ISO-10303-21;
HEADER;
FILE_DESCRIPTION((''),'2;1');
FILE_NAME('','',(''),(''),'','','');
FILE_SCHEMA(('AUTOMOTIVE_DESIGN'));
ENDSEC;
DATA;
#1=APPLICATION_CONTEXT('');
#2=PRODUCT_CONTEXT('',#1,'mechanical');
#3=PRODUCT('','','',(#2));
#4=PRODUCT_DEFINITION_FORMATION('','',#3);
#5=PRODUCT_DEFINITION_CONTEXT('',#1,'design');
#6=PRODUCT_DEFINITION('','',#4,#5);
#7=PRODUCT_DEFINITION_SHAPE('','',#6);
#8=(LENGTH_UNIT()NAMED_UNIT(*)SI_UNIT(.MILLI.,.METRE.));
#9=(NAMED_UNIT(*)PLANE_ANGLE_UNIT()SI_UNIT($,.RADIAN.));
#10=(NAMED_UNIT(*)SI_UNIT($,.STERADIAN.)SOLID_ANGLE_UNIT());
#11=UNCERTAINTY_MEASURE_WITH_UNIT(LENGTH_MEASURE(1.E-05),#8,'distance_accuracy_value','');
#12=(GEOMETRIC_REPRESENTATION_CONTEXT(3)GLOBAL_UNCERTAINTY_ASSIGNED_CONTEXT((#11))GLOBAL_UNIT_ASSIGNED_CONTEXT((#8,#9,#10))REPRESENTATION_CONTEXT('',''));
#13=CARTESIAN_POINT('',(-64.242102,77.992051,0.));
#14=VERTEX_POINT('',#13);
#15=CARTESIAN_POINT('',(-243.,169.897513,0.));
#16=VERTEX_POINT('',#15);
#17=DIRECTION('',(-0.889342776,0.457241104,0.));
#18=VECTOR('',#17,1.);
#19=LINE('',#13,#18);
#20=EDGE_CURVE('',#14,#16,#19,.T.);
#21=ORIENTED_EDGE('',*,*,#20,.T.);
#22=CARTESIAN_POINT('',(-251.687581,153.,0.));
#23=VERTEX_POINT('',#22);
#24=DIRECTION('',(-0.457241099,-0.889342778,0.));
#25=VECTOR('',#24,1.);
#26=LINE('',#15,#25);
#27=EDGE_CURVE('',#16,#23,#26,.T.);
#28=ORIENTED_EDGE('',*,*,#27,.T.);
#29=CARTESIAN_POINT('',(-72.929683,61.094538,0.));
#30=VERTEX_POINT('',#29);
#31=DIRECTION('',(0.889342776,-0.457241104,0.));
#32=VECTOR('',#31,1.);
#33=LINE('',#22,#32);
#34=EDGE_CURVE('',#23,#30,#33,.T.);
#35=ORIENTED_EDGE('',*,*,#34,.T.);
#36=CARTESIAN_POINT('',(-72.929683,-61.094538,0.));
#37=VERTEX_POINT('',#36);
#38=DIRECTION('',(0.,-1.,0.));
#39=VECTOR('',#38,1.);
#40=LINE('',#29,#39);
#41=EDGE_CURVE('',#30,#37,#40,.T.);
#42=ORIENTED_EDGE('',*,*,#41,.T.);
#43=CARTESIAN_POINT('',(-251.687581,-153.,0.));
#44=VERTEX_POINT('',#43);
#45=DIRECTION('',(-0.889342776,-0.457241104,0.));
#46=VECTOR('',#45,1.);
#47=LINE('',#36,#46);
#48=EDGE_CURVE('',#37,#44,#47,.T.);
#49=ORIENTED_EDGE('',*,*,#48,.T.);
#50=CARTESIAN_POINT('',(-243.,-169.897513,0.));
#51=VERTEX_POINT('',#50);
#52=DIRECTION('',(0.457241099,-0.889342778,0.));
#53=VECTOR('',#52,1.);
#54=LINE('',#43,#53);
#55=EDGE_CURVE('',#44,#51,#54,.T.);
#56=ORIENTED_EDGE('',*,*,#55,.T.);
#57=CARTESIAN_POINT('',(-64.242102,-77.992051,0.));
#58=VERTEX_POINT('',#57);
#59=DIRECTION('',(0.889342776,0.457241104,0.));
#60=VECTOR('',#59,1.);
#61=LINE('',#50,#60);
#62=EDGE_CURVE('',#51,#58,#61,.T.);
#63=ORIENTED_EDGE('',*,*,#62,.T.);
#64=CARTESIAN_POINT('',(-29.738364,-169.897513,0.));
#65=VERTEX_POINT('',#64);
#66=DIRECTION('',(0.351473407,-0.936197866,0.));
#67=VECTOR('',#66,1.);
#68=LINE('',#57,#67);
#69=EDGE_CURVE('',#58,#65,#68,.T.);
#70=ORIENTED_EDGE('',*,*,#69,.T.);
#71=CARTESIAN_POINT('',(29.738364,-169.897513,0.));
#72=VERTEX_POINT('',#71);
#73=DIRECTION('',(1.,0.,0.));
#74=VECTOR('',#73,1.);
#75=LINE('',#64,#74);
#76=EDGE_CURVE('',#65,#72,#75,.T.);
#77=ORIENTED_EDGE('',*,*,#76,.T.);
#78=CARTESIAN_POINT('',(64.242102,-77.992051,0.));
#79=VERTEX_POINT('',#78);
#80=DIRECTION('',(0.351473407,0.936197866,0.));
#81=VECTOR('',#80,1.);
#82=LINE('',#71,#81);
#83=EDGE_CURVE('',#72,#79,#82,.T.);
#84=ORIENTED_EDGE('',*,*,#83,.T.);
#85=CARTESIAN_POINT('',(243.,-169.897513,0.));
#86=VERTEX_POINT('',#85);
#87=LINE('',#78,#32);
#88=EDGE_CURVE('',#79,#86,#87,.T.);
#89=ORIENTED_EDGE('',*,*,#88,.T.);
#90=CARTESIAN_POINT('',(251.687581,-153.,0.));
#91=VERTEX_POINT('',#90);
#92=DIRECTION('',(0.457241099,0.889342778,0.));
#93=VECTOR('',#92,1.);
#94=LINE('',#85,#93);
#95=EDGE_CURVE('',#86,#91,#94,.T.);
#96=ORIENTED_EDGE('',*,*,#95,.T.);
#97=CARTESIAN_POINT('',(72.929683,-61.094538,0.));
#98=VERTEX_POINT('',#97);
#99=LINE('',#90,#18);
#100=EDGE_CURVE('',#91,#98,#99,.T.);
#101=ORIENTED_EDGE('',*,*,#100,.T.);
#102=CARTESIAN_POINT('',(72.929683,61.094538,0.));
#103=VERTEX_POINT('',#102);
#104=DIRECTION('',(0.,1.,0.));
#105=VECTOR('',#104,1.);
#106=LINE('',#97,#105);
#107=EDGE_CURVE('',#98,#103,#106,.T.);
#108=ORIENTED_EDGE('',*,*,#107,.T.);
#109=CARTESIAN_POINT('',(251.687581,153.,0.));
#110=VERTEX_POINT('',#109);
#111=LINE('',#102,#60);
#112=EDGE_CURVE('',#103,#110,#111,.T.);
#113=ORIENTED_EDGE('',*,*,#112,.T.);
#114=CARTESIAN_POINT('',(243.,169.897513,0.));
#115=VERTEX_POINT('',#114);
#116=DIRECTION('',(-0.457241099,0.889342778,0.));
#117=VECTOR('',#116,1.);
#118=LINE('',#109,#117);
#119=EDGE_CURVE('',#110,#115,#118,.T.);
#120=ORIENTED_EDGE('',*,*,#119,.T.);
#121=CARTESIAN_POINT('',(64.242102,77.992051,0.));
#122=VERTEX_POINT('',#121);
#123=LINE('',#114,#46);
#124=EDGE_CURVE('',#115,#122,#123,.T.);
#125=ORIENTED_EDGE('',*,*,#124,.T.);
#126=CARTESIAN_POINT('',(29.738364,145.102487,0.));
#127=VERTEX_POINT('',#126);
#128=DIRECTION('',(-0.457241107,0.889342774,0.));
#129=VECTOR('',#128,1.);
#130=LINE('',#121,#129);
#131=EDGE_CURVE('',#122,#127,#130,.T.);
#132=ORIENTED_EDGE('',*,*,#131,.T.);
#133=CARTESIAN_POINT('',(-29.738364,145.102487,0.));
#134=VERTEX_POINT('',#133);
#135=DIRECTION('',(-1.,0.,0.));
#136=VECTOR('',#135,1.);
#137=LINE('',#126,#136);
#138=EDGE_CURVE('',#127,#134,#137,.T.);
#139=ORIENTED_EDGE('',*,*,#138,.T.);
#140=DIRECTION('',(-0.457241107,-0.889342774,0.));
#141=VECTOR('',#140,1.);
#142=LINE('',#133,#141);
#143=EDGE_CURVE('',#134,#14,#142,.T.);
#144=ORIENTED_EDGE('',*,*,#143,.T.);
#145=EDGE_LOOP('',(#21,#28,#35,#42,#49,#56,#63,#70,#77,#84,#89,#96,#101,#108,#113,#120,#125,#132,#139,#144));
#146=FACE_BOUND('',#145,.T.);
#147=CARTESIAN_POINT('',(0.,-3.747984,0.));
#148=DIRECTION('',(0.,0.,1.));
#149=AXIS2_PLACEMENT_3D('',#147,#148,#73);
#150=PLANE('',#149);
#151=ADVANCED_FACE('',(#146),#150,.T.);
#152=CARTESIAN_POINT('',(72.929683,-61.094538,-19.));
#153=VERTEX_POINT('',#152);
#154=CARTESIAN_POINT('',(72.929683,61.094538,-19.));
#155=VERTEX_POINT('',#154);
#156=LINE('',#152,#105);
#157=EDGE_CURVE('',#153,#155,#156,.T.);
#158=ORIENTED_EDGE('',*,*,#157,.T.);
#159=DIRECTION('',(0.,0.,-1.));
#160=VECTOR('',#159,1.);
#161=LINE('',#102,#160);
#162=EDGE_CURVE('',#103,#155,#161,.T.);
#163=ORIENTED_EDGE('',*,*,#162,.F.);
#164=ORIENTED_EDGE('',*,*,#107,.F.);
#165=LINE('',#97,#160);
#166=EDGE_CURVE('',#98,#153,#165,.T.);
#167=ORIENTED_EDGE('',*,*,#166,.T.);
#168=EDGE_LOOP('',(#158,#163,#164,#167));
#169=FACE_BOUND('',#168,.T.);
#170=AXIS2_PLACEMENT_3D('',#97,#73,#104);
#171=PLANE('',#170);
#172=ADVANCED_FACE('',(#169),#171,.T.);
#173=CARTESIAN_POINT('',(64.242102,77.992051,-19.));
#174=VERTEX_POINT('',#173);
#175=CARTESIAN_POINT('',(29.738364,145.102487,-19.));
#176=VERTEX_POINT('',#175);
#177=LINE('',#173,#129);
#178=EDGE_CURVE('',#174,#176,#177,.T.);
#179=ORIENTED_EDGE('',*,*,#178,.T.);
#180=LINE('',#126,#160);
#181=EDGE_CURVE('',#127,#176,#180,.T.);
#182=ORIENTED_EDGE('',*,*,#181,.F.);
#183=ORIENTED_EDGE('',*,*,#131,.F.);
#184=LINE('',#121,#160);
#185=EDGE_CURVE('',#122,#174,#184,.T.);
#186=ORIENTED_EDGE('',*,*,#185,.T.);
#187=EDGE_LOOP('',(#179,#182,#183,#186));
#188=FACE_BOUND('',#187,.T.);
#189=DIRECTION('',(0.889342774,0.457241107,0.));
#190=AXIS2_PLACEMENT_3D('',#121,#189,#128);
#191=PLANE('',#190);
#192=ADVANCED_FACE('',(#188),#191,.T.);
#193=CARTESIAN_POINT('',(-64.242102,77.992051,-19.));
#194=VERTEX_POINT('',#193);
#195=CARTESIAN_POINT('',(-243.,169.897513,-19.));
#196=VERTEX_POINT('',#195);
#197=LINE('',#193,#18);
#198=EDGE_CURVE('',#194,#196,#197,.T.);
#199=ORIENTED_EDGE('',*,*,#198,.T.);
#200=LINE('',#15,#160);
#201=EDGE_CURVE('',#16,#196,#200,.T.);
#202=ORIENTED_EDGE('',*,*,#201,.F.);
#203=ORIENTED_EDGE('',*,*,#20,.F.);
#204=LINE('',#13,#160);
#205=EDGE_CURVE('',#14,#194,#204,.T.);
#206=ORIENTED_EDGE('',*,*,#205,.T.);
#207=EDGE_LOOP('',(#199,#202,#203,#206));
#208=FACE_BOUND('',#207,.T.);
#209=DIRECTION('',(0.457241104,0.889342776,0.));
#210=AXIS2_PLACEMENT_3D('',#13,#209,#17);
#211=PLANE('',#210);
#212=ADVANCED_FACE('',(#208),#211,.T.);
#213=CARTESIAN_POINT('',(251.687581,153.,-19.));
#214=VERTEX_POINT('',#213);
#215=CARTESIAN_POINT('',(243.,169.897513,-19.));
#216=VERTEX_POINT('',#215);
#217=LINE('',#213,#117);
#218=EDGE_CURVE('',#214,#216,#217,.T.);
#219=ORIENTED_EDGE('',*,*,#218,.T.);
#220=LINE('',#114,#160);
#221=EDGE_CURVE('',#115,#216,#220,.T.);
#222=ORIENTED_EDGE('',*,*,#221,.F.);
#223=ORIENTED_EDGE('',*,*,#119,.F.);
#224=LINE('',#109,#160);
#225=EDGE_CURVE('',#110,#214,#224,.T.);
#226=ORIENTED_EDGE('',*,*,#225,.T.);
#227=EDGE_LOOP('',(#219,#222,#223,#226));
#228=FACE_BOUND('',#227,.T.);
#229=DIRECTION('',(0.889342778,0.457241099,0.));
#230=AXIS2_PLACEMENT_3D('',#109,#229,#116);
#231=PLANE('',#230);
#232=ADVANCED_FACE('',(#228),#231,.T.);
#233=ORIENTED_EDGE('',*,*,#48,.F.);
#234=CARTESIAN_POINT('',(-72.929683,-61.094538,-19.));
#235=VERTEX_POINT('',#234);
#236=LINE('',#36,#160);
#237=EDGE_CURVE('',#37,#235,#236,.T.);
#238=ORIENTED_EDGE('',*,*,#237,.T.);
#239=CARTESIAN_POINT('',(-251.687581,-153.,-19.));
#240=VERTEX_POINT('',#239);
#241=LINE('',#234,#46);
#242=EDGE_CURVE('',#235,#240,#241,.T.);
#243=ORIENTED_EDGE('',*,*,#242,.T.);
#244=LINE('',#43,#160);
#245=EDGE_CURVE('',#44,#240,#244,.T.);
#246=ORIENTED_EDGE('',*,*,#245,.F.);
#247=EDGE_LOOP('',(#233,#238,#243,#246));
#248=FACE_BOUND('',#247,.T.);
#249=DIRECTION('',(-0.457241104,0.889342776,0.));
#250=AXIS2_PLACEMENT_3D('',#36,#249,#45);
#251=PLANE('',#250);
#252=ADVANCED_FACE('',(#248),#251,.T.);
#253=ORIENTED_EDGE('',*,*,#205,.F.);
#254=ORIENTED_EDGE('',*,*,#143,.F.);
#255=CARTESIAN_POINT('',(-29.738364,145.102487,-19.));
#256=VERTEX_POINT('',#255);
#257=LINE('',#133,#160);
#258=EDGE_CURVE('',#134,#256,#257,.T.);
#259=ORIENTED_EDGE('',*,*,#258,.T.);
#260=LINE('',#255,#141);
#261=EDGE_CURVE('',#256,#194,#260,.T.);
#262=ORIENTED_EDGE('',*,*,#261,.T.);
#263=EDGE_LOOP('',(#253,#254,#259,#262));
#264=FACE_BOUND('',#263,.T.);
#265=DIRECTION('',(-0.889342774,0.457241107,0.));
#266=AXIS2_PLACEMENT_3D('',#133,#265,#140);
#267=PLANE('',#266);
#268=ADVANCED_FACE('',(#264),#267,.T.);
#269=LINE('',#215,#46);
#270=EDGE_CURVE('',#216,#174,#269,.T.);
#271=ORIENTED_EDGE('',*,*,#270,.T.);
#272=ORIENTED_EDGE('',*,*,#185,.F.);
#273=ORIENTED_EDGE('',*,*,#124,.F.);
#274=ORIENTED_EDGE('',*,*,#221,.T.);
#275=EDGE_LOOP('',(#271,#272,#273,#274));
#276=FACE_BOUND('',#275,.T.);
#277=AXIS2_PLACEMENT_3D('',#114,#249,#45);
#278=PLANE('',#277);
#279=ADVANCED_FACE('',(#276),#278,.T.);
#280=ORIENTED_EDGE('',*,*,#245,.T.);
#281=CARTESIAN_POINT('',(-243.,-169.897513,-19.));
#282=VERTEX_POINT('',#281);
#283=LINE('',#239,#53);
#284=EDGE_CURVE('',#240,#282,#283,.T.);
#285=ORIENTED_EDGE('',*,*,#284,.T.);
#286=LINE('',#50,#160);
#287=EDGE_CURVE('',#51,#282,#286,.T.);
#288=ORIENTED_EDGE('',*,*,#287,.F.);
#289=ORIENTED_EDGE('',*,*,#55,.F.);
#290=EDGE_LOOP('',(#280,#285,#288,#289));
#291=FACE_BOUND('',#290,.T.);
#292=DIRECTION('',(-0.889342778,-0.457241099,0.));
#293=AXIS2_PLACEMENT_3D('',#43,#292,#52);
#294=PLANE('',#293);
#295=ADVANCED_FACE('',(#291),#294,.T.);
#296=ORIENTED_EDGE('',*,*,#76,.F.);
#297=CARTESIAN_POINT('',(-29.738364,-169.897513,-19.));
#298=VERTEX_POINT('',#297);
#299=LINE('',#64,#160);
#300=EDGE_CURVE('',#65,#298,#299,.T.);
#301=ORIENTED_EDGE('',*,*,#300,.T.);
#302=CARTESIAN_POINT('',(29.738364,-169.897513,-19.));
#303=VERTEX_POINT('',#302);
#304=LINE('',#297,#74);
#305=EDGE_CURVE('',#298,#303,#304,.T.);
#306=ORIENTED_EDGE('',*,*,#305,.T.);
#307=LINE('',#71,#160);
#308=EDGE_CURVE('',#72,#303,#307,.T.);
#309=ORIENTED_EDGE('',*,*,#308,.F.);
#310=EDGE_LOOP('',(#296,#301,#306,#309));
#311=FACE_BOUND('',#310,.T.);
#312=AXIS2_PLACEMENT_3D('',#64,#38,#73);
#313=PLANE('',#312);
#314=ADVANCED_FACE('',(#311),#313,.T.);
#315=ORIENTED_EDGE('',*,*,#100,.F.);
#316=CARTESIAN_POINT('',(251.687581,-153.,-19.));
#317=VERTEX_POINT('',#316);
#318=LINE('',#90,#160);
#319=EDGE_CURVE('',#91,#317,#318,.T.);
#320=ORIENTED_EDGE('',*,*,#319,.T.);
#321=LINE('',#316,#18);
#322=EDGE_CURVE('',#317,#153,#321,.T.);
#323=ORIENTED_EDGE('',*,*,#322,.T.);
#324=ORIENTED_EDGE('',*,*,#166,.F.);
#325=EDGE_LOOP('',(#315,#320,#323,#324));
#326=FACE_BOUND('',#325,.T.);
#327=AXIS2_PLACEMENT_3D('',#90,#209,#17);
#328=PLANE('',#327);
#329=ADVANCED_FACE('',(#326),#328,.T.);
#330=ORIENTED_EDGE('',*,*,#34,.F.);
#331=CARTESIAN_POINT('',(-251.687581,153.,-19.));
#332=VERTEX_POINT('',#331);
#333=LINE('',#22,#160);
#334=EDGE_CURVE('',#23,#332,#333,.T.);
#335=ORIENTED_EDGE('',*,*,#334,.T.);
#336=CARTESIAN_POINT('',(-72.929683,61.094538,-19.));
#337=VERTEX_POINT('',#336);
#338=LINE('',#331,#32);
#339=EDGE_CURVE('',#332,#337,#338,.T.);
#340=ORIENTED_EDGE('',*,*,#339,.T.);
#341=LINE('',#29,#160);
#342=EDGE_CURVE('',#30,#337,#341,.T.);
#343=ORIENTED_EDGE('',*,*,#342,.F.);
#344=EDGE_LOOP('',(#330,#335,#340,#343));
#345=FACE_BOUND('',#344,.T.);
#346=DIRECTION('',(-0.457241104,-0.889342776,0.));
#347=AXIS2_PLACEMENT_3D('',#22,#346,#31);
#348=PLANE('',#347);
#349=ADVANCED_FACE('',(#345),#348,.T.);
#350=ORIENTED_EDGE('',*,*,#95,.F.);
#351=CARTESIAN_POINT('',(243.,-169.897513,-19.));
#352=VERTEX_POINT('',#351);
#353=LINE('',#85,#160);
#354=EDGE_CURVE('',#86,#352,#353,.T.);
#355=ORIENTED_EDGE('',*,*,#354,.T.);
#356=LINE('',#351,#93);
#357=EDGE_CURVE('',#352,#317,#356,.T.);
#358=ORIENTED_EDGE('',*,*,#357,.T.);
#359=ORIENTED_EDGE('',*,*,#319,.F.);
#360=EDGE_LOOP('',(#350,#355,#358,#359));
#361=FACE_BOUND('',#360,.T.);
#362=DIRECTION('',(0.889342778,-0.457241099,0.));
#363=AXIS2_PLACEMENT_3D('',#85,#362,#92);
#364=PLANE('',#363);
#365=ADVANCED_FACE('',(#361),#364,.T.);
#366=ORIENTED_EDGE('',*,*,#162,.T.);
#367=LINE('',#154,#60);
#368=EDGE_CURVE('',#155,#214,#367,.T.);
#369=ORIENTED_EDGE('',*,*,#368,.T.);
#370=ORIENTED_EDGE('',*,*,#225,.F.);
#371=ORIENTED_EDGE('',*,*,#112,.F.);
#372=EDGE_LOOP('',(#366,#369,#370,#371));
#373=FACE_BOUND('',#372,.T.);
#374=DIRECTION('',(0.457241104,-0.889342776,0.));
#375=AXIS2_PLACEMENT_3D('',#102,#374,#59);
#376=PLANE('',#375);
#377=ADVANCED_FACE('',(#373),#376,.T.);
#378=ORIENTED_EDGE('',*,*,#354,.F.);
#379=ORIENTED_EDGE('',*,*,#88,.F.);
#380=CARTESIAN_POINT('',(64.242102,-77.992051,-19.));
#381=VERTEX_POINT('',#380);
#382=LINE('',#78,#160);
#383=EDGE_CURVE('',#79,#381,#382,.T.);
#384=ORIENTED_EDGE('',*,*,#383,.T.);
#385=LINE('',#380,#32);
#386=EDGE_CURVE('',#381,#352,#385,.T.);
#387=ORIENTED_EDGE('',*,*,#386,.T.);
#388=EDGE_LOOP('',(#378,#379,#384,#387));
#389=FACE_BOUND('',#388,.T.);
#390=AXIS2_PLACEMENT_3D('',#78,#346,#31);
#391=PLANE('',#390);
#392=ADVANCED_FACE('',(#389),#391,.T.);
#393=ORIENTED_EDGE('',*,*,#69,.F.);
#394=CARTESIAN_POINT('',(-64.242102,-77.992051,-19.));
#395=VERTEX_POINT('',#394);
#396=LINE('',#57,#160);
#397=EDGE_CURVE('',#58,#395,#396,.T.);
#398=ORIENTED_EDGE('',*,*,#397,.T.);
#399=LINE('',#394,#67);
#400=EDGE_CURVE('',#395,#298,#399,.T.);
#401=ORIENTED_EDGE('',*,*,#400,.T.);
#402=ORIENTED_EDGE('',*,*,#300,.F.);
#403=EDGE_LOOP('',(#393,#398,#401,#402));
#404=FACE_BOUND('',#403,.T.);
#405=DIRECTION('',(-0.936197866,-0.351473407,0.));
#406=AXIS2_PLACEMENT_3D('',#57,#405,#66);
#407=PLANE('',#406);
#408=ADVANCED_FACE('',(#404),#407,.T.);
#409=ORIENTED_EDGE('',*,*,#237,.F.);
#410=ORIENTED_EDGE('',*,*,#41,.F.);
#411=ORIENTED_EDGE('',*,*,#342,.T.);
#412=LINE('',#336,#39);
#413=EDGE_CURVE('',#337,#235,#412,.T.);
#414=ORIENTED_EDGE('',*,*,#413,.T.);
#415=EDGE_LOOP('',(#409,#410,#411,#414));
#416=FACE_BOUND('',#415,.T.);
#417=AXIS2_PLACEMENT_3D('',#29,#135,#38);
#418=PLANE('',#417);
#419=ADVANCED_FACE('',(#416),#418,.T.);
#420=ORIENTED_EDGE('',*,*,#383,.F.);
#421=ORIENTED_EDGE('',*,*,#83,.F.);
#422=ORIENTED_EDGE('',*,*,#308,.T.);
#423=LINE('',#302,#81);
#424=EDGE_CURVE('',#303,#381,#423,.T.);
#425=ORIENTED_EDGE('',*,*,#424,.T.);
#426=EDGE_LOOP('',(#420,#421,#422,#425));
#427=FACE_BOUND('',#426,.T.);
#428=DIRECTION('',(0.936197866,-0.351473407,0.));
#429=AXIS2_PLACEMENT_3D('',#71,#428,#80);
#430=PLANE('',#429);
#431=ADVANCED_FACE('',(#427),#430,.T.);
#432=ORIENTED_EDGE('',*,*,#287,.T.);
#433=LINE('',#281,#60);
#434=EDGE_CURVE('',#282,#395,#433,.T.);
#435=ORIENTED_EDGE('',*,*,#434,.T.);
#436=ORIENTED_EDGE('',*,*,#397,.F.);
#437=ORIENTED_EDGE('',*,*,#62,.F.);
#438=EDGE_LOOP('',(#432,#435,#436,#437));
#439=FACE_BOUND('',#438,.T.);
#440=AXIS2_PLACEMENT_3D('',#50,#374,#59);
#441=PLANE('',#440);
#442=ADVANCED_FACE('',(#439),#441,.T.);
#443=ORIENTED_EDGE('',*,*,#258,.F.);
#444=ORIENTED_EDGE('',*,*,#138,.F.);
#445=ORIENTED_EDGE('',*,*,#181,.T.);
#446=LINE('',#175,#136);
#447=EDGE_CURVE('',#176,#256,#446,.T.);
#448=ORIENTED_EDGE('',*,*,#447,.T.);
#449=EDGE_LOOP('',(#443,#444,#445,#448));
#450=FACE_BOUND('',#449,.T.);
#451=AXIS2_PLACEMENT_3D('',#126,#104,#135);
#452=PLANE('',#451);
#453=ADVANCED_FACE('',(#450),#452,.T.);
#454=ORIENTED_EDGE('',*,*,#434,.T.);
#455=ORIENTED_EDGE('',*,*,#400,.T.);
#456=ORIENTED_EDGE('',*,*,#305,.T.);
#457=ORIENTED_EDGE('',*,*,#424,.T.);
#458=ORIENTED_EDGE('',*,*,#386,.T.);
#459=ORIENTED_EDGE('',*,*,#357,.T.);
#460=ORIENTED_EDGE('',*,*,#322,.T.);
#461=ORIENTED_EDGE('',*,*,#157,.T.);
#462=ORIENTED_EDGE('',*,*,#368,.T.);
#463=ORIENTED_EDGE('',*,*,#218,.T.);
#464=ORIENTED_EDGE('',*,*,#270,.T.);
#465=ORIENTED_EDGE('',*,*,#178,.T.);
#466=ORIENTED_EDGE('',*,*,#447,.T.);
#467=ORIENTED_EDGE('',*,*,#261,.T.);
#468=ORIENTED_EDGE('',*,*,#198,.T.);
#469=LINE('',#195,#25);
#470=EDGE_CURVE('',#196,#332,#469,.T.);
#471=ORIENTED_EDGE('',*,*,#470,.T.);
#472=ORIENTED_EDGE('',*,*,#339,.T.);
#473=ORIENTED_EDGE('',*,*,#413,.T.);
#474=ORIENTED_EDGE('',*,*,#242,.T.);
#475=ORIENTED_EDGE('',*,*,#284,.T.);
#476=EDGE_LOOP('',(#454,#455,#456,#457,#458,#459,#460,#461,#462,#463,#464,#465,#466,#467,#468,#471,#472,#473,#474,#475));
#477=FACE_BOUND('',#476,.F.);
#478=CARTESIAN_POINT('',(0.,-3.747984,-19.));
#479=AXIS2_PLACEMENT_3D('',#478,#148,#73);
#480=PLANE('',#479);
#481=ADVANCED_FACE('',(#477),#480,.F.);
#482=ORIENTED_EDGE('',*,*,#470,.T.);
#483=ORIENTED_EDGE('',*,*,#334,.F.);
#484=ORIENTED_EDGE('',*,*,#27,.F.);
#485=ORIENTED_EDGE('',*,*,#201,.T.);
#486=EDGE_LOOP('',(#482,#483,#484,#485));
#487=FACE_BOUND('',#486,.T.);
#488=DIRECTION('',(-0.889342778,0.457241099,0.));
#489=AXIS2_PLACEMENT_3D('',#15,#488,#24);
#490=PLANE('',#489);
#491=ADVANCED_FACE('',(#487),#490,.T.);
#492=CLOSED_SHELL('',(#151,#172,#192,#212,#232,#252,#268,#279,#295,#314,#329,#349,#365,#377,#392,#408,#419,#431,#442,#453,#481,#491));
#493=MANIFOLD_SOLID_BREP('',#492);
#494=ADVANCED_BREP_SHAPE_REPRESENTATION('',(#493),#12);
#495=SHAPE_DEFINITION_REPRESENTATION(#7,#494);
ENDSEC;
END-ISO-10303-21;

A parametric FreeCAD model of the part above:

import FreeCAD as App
import Part
import Sketcher

V = App.Vector
Q = App.Units.Quantity


def add_polygon(sketch, points):
    """Adds a closed chain of lines whose ends are joined by coincident constraints."""
    first, n = sketch.GeometryCount, len(points)
    for a, b in zip(points, points[1:] + points[:1]):
        sketch.addGeometry(Part.LineSegment(App.Vector(*a, 0), App.Vector(*b, 0)), False)
    for i in range(n):
        sketch.addConstraint(Sketcher.Constraint("Coincident", first + i, 2, first + (i + 1) % n, 1))

doc = App.newDocument("Part")
params = doc.addObject("Spreadsheet::Sheet", "Params")
for row, (alias, value) in enumerate([
    ("sketch1_length", "201 mm"),
    ("sketch1_length2", "19 mm"),
    ("pad1_length", "19 mm"),
], start=1):
    params.set(f"A{row}", alias)
    params.set(f"B{row}", "=" + value)
    params.setAlias(f"B{row}", alias)

body = doc.addObject("PartDesign::Body", "Body")

# Sketch on XY plane
sketch1 = doc.addObject("Sketcher::SketchObject", "Sketch")
body.addObject(sketch1)
sketch1.AttachmentSupport = (doc.XY_Plane, [""])
sketch1.MapMode = "FlatFace"
add_polygon(sketch1, [(-64, 78), (-243, 170), (-252, 153), (-73, 61), (-73, -61), (-252, -153), (-243, -170), (-64, -78), (-30, -170), (30, -170), (64, -78), (243, -170), (252, -153), (73, -61), (73, 61), (252, 153), (243, 170), (64, 78), (30, 145), (-30, 145)])  # lines 0-19
sketch1.addConstraint([
    Sketcher.Constraint("Vertical", 3),
    Sketcher.Constraint("Horizontal", 8),
    Sketcher.Constraint("Vertical", 13),
    Sketcher.Constraint("Horizontal", 18),
    Sketcher.Constraint("Symmetric", 0, 2, 10, 2, -1, 1),
    Sketcher.Constraint("Symmetric", 1, 2, 11, 2, -1, 1),
    Sketcher.Constraint("Symmetric", 2, 2, 12, 2, -1, 1),
    Sketcher.Constraint("Symmetric", 4, 2, 14, 2, -1, 1),
    Sketcher.Constraint("Symmetric", 5, 2, 15, 2, -1, 1),
    Sketcher.Constraint("Symmetric", 6, 2, 16, 2, -1, 1),
    Sketcher.Constraint("Symmetric", 9, 2, 19, 2, -1, 1),
    Sketcher.Constraint("Symmetric", 6, 2, 9, 2, -2),
    Sketcher.Constraint("Symmetric", 5, 2, 10, 2, -2),
    Sketcher.Constraint("Symmetric", 4, 2, 11, 2, -2),
    Sketcher.Constraint("Perpendicular", 0, 1),
    Sketcher.Constraint("Perpendicular", 1, 2),
    Sketcher.Constraint("Perpendicular", 4, 5),
    Sketcher.Constraint("Parallel", 6, 14),
    Sketcher.Constraint("Perpendicular", 16, 17),
    Sketcher.Constraint("Perpendicular", 12, 19),
    Sketcher.Constraint("Horizontal", 5, 2, 7, 2),
    Sketcher.Constraint("Vertical", 8, 2, 17, 2),
    Sketcher.Constraint("Vertical", 7, 2, 18, 2),
    Sketcher.Constraint("Equal", 0, 2),
    Sketcher.Constraint("Distance", 0, Q("201 mm")),
    Sketcher.Constraint("Distance", 1, Q("19 mm")),
    Sketcher.Constraint("DistanceX", 0, 2, -1, 1, Q("243 mm")),
    Sketcher.Constraint("DistanceY", -1, 1, 1, 2, Q("153 mm")),
    Sketcher.Constraint("DistanceX", 1, 2, 2, 2, Q("178.757898 mm")),
    Sketcher.Constraint("Distance", 17, Q("75.460709 mm")),
])
sketch1.setExpression("Constraints[44]", "Params.sketch1_length")
sketch1.setExpression("Constraints[45]", "Params.sketch1_length2")
pad1 = doc.addObject("PartDesign::Pad", "Pad")
body.addObject(pad1)
pad1.Profile = sketch1
pad1.setExpression("Length", "Params.pad1_length")
pad1.Reversed = True

doc.recompute()
